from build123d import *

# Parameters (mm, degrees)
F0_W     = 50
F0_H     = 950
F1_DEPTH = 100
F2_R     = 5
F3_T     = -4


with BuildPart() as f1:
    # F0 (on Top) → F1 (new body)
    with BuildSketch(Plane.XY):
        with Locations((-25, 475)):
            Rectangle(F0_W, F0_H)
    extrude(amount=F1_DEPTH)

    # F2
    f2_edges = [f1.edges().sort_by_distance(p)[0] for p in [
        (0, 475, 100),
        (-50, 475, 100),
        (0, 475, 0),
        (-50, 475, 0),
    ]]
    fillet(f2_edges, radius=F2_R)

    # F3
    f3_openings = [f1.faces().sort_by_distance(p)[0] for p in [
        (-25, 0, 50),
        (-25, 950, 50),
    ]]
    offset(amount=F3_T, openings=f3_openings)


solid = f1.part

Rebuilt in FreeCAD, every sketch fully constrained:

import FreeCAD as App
import Part
import Sketcher
from FreeCAD import Vector
Q = App.Units.Quantity


def edges_at(feature, points):
    """Names of the edges that pass closest to the given points."""
    edges = feature.Shape.Edges
    near = lambda p: min(range(len(edges)), key=lambda i: edges[i].distToShape(Part.Vertex(*p))[0])
    return sorted({f"Edge{near(p) + 1}" for p in points})


def faces_at(feature, points):
    """Names of the faces that lie closest to the given points."""
    faces = feature.Shape.Faces
    near = lambda p: min(range(len(faces)), key=lambda i: faces[i].distToShape(Part.Vertex(*p))[0])
    return sorted({f"Face{near(p) + 1}" for p in points})

doc = App.newDocument("Part")
body = doc.addObject("PartDesign::Body", "Body")

sketch1 = body.newObject("Sketcher::SketchObject", "Sketch")
sketch1.AttachmentSupport = (doc.getObject("XY_Plane"), [""])
sketch1.MapMode = "FlatFace"
sketch1.addGeometry([
    Part.LineSegment(Vector(-50, 950, 0), Vector(-50, 0, 0)),
    Part.LineSegment(Vector(-50, 0, 0), Vector(0, 0, 0)),
    Part.LineSegment(Vector(0, 0, 0), Vector(0, 950, 0)),
    Part.LineSegment(Vector(0, 950, 0), Vector(-50, 950, 0)),
], False)
sketch1.addConstraint([
    Sketcher.Constraint("Coincident", 0, 2, 1, 1),
    Sketcher.Constraint("Coincident", 1, 2, 2, 1),
    Sketcher.Constraint("Coincident", 2, 2, 3, 1),
    Sketcher.Constraint("Coincident", 3, 2, 0, 1),
    Sketcher.Constraint("Vertical", 0),
    Sketcher.Constraint("Horizontal", 1),
    Sketcher.Constraint("Vertical", 2),
    Sketcher.Constraint("Horizontal", 3),
    Sketcher.Constraint("Coincident", 1, 2, -1, 1),
    Sketcher.Constraint("DistanceX", 1, 1, 1, 2, Q("50 mm")),
    Sketcher.Constraint("DistanceY", 0, 2, 0, 1, Q("950 mm")),
])
pad1 = body.newObject("PartDesign::Pad", "Pad")
pad1.Profile = sketch1
pad1.Length = 100
doc.recompute()

fillet = body.newObject("PartDesign::Fillet", "Fillet")
fillet.Base = (pad1, edges_at(pad1, [
    (0, 475, 100),
    (-50, 475, 100),
    (0, 475, 0),
    (-50, 475, 0),
]))
fillet.Radius = 5
doc.recompute()

thickness = body.newObject("PartDesign::Thickness", "Thickness")
thickness.Base = (fillet, faces_at(fillet, [(-25, 0, 50), (-25, 950, 50)]))
thickness.Value = 4
thickness.Reversed = True
thickness.Join = "Arc"

doc.recompute()
